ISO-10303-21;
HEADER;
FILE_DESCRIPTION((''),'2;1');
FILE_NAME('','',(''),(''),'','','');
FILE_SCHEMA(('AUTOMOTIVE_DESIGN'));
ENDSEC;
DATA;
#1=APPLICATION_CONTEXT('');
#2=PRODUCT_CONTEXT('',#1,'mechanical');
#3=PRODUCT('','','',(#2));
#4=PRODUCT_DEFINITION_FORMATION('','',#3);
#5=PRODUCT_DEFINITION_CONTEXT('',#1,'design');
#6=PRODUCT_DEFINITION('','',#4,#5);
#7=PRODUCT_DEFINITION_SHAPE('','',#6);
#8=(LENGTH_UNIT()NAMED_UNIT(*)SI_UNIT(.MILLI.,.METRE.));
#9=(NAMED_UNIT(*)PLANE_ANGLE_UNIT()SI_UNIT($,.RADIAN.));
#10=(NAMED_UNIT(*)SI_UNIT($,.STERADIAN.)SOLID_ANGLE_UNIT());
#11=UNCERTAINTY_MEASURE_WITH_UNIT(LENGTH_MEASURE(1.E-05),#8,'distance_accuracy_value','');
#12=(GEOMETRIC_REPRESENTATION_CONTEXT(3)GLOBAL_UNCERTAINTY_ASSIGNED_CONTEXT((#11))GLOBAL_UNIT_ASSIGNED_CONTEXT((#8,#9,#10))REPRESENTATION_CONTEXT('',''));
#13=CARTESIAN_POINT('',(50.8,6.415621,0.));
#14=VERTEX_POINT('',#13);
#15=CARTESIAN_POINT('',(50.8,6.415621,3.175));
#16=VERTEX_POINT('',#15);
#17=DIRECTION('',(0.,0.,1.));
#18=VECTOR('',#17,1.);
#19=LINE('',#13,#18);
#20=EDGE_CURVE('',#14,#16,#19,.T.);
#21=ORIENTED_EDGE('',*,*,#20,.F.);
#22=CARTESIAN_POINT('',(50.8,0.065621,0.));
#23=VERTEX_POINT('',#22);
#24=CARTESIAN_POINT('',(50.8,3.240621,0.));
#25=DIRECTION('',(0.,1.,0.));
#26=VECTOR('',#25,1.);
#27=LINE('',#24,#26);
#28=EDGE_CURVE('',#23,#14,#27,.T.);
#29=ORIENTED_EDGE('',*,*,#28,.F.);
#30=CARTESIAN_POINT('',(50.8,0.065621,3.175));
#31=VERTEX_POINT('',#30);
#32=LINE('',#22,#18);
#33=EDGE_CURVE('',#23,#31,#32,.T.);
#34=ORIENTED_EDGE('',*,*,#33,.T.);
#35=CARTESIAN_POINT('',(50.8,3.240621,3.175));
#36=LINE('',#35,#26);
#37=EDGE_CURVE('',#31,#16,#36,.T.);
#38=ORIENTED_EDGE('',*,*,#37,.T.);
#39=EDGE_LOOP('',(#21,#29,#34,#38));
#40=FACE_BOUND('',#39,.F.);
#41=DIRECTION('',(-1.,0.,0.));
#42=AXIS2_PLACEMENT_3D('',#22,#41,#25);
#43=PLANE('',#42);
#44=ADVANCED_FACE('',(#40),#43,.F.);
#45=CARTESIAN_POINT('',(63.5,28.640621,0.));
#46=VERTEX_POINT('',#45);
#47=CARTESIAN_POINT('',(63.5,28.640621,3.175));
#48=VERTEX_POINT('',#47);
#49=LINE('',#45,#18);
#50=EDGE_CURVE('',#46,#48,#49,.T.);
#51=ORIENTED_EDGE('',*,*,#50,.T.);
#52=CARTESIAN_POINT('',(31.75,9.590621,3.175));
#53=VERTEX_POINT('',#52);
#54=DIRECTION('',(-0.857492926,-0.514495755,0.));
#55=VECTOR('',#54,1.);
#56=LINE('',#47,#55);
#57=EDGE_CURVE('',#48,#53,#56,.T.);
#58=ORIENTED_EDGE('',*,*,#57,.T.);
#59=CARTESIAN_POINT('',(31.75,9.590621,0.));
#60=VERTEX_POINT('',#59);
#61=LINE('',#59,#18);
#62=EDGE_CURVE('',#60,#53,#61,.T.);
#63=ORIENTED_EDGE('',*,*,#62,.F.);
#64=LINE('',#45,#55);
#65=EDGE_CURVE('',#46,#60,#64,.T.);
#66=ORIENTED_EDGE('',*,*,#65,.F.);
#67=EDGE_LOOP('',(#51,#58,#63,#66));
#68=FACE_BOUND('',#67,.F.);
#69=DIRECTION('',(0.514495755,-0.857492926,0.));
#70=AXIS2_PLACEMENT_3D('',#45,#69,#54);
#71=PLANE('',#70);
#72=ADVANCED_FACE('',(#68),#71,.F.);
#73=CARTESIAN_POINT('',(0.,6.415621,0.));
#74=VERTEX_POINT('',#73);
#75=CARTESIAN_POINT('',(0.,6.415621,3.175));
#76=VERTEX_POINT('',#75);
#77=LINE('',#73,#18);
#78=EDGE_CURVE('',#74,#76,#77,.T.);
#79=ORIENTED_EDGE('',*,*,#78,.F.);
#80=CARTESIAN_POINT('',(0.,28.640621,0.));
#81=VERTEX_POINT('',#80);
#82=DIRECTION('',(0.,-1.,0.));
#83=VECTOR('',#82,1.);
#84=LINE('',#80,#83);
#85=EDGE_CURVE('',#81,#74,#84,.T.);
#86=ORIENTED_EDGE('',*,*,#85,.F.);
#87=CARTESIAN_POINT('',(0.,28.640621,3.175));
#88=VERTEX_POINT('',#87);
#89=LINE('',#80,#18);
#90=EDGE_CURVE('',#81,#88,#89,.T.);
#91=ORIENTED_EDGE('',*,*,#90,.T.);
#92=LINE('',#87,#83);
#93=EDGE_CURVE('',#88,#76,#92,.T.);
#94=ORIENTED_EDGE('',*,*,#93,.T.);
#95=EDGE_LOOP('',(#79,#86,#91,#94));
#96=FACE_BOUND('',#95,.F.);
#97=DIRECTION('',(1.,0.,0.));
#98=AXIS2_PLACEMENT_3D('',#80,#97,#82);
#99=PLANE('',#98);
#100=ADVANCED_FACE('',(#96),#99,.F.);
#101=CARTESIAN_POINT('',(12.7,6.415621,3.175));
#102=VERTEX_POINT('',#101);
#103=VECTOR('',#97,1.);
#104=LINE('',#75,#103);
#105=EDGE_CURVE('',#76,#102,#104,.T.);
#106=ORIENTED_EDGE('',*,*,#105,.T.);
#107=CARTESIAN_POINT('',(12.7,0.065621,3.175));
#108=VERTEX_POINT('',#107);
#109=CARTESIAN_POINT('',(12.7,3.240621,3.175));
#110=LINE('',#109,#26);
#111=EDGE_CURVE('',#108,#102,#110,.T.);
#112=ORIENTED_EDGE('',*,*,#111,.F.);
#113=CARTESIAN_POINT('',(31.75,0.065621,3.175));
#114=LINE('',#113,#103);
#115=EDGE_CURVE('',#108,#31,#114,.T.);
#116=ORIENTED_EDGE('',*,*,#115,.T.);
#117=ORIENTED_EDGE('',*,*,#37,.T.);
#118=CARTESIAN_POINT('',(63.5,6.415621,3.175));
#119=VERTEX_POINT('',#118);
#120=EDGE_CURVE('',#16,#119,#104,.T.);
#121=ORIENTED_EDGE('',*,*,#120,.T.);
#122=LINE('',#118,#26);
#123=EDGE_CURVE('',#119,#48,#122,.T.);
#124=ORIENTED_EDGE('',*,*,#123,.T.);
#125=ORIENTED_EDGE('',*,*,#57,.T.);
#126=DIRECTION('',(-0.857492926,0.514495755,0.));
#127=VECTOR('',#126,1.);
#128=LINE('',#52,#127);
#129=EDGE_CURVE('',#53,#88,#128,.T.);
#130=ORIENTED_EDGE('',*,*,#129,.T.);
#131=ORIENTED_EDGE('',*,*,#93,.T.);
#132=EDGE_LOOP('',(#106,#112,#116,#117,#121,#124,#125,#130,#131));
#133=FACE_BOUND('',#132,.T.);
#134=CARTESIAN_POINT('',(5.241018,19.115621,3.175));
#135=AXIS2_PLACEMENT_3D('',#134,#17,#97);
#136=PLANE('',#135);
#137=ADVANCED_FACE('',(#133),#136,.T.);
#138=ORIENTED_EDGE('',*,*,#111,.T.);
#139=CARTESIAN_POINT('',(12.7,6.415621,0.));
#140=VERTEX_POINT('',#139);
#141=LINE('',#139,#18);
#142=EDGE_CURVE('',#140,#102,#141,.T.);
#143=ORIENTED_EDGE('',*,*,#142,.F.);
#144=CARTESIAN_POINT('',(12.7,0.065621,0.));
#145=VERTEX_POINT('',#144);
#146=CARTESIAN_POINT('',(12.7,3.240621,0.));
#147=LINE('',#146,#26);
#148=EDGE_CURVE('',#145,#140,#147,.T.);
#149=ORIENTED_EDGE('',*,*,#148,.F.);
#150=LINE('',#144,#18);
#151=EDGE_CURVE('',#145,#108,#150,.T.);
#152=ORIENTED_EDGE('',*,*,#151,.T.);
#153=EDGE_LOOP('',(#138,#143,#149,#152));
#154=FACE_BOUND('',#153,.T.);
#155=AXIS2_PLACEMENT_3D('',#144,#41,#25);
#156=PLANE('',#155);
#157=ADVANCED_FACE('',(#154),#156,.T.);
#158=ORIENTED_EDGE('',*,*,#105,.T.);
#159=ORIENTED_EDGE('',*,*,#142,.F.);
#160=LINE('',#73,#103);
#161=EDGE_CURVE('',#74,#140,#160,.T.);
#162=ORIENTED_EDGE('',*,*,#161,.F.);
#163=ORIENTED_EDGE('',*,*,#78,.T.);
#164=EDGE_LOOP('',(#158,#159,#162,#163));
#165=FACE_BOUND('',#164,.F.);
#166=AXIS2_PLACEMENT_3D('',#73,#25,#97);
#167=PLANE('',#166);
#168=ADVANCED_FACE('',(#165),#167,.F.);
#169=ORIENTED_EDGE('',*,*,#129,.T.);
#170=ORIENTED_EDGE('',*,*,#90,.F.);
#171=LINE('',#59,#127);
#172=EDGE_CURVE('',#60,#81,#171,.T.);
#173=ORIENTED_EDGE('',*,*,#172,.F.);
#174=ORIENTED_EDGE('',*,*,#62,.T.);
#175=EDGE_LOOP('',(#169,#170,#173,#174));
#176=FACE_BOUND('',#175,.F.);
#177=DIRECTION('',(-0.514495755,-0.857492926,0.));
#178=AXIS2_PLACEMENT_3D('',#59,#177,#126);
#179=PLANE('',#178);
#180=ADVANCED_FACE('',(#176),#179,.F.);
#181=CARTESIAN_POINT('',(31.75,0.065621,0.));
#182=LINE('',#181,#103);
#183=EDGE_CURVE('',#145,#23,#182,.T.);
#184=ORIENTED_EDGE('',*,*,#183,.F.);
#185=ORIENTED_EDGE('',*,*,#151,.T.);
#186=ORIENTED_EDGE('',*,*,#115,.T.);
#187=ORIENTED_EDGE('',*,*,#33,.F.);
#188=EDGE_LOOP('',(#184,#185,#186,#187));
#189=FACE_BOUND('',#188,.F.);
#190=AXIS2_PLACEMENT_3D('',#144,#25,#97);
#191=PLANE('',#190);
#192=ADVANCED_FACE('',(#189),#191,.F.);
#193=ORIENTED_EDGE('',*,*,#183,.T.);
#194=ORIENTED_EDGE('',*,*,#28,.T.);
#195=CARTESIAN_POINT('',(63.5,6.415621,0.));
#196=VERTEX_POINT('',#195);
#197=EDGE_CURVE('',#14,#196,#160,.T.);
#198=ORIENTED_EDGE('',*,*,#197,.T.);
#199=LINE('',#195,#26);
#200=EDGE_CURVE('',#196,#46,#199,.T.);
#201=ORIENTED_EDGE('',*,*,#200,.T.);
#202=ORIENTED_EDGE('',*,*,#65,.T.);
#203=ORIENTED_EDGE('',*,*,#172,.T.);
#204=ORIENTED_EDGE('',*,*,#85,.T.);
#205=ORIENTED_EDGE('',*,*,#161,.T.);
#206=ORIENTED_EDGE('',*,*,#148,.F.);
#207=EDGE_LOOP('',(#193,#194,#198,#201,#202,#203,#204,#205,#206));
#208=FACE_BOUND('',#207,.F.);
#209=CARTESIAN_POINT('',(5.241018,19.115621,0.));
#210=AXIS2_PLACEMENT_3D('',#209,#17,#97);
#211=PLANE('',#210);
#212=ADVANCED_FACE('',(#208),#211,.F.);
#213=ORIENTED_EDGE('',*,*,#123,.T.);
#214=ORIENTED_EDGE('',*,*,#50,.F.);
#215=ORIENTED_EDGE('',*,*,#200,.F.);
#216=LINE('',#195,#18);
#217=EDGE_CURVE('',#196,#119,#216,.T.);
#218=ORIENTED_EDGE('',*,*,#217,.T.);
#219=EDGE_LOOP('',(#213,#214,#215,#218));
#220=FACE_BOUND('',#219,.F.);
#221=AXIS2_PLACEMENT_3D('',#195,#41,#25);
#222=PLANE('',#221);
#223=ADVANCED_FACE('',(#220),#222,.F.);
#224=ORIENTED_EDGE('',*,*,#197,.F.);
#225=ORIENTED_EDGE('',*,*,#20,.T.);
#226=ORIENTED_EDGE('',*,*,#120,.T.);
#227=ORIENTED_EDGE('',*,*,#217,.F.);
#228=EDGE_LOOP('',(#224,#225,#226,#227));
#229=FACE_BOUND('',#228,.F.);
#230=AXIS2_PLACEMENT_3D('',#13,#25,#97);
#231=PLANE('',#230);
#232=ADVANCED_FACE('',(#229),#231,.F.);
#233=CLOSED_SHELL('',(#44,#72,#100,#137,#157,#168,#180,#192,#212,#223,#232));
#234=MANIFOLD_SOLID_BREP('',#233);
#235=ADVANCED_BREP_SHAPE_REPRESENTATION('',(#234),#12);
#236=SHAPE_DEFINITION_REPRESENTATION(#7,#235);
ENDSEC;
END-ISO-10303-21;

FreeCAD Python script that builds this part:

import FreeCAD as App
import Part
import Sketcher
from FreeCAD import Vector
Q = App.Units.Quantity

doc = App.newDocument("Part")
body = doc.addObject("PartDesign::Body", "Body")

sketch1 = doc.addObject("Sketcher::SketchObject", "Sketch")
body.addObject(sketch1)
sketch1.AttachmentSupport = (doc.XY_Plane, [""])
sketch1.MapMode = "FlatFace"
sketch1.addGeometry([
    Part.LineSegment(Vector(0, 29, 0), Vector(0, 6, 0)),
    Part.LineSegment(Vector(0, 6, 0), Vector(13, 6, 0)),
    Part.LineSegment(Vector(13, 6, 0), Vector(13, 0, 0)),
    Part.LineSegment(Vector(13, 0, 0), Vector(51, 0, 0)),
    Part.LineSegment(Vector(51, 0, 0), Vector(51, 6, 0)),
    Part.LineSegment(Vector(51, 6, 0), Vector(64, 6, 0)),
    Part.LineSegment(Vector(64, 6, 0), Vector(64, 29, 0)),
    Part.LineSegment(Vector(64, 29, 0), Vector(32, 10, 0)),
    Part.LineSegment(Vector(32, 10, 0), Vector(0, 29, 0)),
], False)
sketch1.addConstraint([
    Sketcher.Constraint("Coincident", 0, 2, 1, 1),
    Sketcher.Constraint("Coincident", 1, 2, 2, 1),
    Sketcher.Constraint("Coincident", 2, 2, 3, 1),
    Sketcher.Constraint("Coincident", 3, 2, 4, 1),
    Sketcher.Constraint("Coincident", 4, 2, 5, 1),
    Sketcher.Constraint("Coincident", 5, 2, 6, 1),
    Sketcher.Constraint("Coincident", 6, 2, 7, 1),
    Sketcher.Constraint("Coincident", 7, 2, 8, 1),
    Sketcher.Constraint("Coincident", 8, 2, 0, 1),
    Sketcher.Constraint("Vertical", 0),
    Sketcher.Constraint("Horizontal", 1),
    Sketcher.Constraint("Vertical", 2),
    Sketcher.Constraint("Horizontal", 3),
    Sketcher.Constraint("Vertical", 4),
    Sketcher.Constraint("Horizontal", 5),
    Sketcher.Constraint("Vertical", 6),
    Sketcher.Constraint("PointOnObject", 0, 2, -2),
    Sketcher.Constraint("Horizontal", 1, 2, 4, 2),
    Sketcher.Constraint("Horizontal", 6, 2, 8, 2),
    Sketcher.Constraint("Equal", 1, 5),
    Sketcher.Constraint("Equal", 7, 8),
    Sketcher.Constraint("DistanceX", 1, 1, 1, 2, Q("0.5 in")),
    Sketcher.Constraint("DistanceX", 3, 1, 3, 2, Q("1.5 in")),
    Sketcher.Constraint("DistanceY", 2, 2, 2, 1, Q("0.25 in")),
    Sketcher.Constraint("DistanceY", 0, 2, 0, 1, Q("0.875 in")),
    Sketcher.Constraint("DistanceY", 7, 2, 8, 2, Q("0.75 in")),
    Sketcher.Constraint("DistanceY", -1, 1, 0, 2, Q("6.415621 mm")),
])
pad1 = doc.addObject("PartDesign::Pad", "Pad")
body.addObject(pad1)
pad1.Profile = sketch1
pad1.Length = Q("0.125 in")

doc.recompute()
